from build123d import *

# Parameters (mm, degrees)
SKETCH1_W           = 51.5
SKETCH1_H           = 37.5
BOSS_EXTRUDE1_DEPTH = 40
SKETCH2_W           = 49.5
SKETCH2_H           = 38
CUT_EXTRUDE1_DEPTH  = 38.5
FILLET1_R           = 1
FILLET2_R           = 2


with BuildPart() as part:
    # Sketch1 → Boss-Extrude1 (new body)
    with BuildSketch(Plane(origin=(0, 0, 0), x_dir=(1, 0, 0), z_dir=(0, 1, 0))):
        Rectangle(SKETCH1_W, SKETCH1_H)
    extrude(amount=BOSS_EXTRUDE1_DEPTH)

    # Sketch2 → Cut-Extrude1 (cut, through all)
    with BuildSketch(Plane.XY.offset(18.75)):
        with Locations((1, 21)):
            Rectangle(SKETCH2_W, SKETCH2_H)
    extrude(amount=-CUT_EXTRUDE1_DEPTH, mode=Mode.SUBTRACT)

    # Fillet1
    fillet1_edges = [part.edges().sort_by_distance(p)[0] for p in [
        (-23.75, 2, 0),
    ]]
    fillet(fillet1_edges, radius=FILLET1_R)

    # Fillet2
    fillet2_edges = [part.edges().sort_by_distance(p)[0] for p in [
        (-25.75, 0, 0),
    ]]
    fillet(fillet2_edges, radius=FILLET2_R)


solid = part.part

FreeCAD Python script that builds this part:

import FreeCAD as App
import Part
import Sketcher

V = App.Vector


def edges_at(feature, points):
    """Names of the edges that pass closest to the given points."""
    edges = feature.Shape.Edges
    near = lambda p: min(range(len(edges)), key=lambda i: edges[i].distToShape(Part.Vertex(*p))[0])
    return sorted({f"Edge{near(p) + 1}" for p in points})


def add_polygon(sketch, points):
    """Adds a closed chain of lines whose ends are joined by coincident constraints."""
    first, n = sketch.GeometryCount, len(points)
    for a, b in zip(points, points[1:] + points[:1]):
        sketch.addGeometry(Part.LineSegment(App.Vector(*a, 0), App.Vector(*b, 0)), False)
    for i in range(n):
        sketch.addConstraint(Sketcher.Constraint("Coincident", first + i, 2, first + (i + 1) % n, 1))

doc = App.newDocument("Part")
body = doc.addObject("PartDesign::Body", "Body")

sketch1 = doc.addObject("Sketcher::SketchObject", "Sketch")
body.addObject(sketch1)
sketch1.AttachmentSupport = (doc.XZ_Plane, [""])
sketch1.MapMode = "FlatFace"
add_polygon(sketch1, [(-26, -19), (-26, 19), (26, 19), (26, -19)])
sketch1.addConstraint([
    Sketcher.Constraint("Vertical", 0),
    Sketcher.Constraint("Horizontal", 1),
    Sketcher.Constraint("Vertical", 2),
    Sketcher.Constraint("Horizontal", 3),
    Sketcher.Constraint("Symmetric", 0, 2, 2, 2, -1, 1),
    Sketcher.Constraint("DistanceX", 1, 1, 1, 2, 51.5),
    Sketcher.Constraint("DistanceY", 0, 1, 0, 2, 37.5),
])
pad1 = doc.addObject("PartDesign::Pad", "Pad")
body.addObject(pad1)
pad1.Profile = sketch1
pad1.Length = 40
pad1.Reversed = True

sketch2 = doc.addObject("Sketcher::SketchObject", "Sketch001")
body.addObject(sketch2)
sketch2.AttachmentSupport = (doc.XY_Plane, [""])
sketch2.MapMode = "FlatFace"
sketch2.AttachmentOffset = App.Placement(V(0, 0, 18.75), App.Rotation())
add_polygon(sketch2, [(-24, 40), (-24, 2), (26, 2), (26, 40)])
sketch2.addConstraint([
    Sketcher.Constraint("Vertical", 0),
    Sketcher.Constraint("Horizontal", 1),
    Sketcher.Constraint("Vertical", 2),
    Sketcher.Constraint("Horizontal", 3),
    Sketcher.Constraint("DistanceY", 0, 2, 0, 1, 38.0),
    Sketcher.Constraint("DistanceX", 1, 1, 1, 2, 49.5),
    Sketcher.Constraint("DistanceY", -1, 1, 0, 2, 2.0),
    Sketcher.Constraint("DistanceX", 0, 2, -1, 1, 23.75),
])
pocket1 = doc.addObject("PartDesign::Pocket", "Pocket")
body.addObject(pocket1)
pocket1.Profile = sketch2
pocket1.Type = "ThroughAll"
doc.recompute()

fillet = doc.addObject("PartDesign::Fillet", "Fillet")
body.addObject(fillet)
fillet.Base = (pocket1, edges_at(pocket1, [(-23.75, 2, 0)]))
fillet.Radius = 1
doc.recompute()

fillet2 = doc.addObject("PartDesign::Fillet", "Fillet001")
body.addObject(fillet2)
fillet2.Base = (fillet, edges_at(fillet, [(-25.75, 0, 0)]))
fillet2.Radius = 2

doc.recompute()
